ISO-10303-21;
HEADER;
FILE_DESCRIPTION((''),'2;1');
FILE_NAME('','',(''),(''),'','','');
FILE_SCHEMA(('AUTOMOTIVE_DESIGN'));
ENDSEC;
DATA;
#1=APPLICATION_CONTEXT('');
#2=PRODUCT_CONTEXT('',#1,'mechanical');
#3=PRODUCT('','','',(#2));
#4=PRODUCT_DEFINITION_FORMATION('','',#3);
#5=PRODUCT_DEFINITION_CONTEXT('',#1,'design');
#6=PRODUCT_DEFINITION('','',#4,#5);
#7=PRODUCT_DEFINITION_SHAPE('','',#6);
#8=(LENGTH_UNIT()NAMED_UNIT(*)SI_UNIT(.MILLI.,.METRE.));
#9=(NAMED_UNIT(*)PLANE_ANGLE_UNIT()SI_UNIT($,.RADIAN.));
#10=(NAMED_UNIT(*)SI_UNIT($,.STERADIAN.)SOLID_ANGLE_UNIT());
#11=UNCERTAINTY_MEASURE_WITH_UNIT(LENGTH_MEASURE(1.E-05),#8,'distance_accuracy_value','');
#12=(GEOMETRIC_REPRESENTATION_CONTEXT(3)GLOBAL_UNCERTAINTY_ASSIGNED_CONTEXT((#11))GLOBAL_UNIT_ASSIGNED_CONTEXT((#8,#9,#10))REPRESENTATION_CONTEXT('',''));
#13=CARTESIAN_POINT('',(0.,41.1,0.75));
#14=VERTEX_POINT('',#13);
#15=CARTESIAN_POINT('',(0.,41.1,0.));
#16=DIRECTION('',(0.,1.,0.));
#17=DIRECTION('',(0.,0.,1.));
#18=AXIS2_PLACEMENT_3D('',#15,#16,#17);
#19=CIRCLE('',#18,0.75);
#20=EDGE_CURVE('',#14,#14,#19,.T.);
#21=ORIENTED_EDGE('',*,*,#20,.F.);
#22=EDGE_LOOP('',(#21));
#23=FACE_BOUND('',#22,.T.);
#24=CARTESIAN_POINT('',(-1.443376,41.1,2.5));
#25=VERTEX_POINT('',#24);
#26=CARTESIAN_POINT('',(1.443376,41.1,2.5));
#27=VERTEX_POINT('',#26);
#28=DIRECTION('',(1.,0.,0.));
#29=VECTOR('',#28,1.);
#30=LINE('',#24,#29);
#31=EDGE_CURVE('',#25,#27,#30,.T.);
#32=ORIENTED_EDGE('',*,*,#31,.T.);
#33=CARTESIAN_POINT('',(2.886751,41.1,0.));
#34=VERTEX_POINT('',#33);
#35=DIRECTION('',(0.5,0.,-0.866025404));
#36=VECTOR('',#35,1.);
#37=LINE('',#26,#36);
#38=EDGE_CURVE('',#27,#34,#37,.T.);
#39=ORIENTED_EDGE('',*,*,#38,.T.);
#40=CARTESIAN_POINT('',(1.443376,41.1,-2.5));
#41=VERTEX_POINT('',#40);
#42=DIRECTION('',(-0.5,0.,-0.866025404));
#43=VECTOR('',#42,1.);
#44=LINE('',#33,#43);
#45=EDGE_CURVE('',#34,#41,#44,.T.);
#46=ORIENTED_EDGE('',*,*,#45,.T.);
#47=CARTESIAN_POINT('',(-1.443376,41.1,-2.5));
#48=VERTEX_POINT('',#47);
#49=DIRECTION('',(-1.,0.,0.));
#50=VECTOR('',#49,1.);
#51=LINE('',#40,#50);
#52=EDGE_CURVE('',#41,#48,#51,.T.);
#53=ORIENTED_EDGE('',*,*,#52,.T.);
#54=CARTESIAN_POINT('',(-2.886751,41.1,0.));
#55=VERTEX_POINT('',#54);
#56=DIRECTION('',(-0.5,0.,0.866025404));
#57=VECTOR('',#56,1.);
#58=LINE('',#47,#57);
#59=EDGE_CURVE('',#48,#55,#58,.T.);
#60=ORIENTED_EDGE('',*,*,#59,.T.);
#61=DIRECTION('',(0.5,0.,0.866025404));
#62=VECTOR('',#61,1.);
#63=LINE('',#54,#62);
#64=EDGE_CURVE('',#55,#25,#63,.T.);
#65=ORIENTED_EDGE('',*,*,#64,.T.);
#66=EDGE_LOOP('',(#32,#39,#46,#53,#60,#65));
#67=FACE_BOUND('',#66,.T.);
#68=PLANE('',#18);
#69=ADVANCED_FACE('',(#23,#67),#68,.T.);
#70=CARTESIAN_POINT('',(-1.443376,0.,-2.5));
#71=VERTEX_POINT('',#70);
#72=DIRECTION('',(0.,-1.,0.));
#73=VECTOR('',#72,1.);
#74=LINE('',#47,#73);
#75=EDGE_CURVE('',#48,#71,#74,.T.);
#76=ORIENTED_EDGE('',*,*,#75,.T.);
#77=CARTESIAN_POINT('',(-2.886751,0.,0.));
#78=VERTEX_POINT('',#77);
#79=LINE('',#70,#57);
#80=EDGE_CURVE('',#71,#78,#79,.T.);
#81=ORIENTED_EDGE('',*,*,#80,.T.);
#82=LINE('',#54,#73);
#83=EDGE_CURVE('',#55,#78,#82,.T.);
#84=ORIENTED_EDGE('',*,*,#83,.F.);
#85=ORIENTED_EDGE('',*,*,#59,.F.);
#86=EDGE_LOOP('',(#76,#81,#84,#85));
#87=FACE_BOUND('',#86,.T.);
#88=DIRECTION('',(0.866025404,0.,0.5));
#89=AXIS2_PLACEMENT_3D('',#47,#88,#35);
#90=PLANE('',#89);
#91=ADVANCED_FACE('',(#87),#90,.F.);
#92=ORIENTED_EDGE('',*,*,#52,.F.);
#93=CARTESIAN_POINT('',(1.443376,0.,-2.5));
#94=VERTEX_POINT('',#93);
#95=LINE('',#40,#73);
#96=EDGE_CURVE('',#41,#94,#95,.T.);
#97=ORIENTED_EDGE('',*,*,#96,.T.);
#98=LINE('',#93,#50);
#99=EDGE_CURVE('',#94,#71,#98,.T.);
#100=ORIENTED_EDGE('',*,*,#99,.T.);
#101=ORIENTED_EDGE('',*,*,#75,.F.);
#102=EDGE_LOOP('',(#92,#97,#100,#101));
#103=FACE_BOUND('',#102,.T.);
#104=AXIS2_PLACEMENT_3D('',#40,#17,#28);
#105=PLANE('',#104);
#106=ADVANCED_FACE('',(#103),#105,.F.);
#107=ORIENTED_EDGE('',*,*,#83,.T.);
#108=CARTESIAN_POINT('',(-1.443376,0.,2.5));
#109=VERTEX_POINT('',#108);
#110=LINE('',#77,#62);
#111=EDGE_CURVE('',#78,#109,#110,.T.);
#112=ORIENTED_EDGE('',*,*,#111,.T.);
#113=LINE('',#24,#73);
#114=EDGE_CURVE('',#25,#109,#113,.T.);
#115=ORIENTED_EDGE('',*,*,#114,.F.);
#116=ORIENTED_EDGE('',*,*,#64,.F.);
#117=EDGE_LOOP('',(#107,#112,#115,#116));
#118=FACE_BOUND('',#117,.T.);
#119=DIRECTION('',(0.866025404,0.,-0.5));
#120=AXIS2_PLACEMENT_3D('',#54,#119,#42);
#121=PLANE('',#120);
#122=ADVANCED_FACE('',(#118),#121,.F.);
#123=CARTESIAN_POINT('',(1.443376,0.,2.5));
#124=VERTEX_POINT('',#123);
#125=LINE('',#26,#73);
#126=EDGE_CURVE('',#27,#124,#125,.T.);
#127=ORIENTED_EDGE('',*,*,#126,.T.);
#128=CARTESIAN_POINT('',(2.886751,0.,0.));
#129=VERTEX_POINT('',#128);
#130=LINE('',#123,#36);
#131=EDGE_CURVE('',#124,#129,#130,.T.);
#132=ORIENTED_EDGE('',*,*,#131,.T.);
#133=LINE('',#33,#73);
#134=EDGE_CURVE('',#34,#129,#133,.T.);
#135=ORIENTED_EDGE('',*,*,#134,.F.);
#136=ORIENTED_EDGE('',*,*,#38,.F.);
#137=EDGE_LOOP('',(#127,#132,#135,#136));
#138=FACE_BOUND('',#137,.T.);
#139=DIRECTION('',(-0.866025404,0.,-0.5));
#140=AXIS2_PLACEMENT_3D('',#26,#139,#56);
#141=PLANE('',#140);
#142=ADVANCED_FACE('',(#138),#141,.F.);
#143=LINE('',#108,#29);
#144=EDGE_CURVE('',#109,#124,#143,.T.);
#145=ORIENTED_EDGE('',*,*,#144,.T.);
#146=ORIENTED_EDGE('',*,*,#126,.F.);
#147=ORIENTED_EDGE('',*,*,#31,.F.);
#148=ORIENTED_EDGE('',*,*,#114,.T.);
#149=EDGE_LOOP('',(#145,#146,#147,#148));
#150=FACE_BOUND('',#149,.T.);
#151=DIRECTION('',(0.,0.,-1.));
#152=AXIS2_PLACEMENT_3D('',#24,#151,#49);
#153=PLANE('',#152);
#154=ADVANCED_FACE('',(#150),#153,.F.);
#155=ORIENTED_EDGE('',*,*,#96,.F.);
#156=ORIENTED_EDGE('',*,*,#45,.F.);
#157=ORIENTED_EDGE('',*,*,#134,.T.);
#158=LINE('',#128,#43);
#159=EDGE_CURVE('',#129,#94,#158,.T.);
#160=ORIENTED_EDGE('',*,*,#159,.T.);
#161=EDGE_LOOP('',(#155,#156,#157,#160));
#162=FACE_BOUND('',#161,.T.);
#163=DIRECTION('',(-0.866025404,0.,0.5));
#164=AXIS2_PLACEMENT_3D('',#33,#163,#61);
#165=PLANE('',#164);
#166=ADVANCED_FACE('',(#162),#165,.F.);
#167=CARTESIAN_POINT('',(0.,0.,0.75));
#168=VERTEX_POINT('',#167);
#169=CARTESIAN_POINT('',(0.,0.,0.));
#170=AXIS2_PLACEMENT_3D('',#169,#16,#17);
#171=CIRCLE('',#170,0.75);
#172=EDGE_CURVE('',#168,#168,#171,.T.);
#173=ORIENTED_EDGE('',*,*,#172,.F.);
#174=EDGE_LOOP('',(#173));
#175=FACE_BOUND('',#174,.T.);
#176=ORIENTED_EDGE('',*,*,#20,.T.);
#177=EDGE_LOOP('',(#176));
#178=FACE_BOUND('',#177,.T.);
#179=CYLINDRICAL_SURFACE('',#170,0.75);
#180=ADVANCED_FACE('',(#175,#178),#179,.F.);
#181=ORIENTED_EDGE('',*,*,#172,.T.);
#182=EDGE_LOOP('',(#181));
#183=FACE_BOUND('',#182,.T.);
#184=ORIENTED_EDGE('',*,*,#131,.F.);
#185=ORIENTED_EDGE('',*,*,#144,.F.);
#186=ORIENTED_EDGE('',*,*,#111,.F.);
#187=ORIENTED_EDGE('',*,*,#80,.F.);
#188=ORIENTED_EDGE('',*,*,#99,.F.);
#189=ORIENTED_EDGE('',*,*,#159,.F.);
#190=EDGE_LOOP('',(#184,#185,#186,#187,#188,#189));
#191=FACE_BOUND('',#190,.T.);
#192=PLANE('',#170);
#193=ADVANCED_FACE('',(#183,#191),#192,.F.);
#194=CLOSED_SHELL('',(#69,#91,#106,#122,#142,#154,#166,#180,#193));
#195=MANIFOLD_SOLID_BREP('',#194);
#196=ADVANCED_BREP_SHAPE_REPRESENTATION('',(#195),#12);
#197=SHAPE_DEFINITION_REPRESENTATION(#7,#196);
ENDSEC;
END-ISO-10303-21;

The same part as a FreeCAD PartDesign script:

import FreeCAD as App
import Part
import Sketcher
from FreeCAD import Vector
Q = App.Units.Quantity

doc = App.newDocument("Part")
params = doc.addObject("Spreadsheet::Sheet", "Params")
for row, (alias, value) in enumerate([
    ("pad1_length", "41.1 mm"),
    ("sketch2_diameter", "1.5 mm"),
], start=1):
    params.set(f"A{row}", alias)
    params.set(f"B{row}", "=" + value)
    params.setAlias(f"B{row}", alias)

body = doc.addObject("PartDesign::Body", "Body")

# Sketch on XZ plane
sketch1 = doc.addObject("Sketcher::SketchObject", "Sketch")
body.addObject(sketch1)
sketch1.AttachmentSupport = (doc.XZ_Plane, [""])
sketch1.MapMode = "FlatFace"
sketch1.addGeometry([
    Part.LineSegment(Vector(2.886751, 0, 0), Vector(1.443376, -2.5, 0)),  # 0
    Part.LineSegment(Vector(1.443376, -2.5, 0), Vector(-1.443376, -2.5, 0)),  # 1
    Part.LineSegment(Vector(-1.443376, -2.5, 0), Vector(-2.886751, 0, 0)),  # 2
    Part.LineSegment(Vector(-2.886751, 0, 0), Vector(-1.443376, 2.5, 0)),  # 3
    Part.LineSegment(Vector(-1.443376, 2.5, 0), Vector(1.443376, 2.5, 0)),  # 4
    Part.LineSegment(Vector(1.443376, 2.5, 0), Vector(2.886751, 0, 0)),  # 5
], False)
sketch1.addConstraint([
    Sketcher.Constraint("Coincident", 0, 2, 1, 1),
    Sketcher.Constraint("Coincident", 1, 2, 2, 1),
    Sketcher.Constraint("Coincident", 2, 2, 3, 1),
    Sketcher.Constraint("Coincident", 3, 2, 4, 1),
    Sketcher.Constraint("Coincident", 4, 2, 5, 1),
    Sketcher.Constraint("Coincident", 5, 2, 0, 1),
    Sketcher.Constraint("Horizontal", 1),
    Sketcher.Constraint("Horizontal", 4),
    Sketcher.Constraint("Symmetric", 0, 2, 3, 2, -1, 1),
    Sketcher.Constraint("Symmetric", 2, 2, 5, 2, -1, 1),
    Sketcher.Constraint("PointOnObject", 2, 2, -1),
    Sketcher.Constraint("Parallel", 2, 5),
    Sketcher.Constraint("Vertical", 1, 2, 3, 2),
    Sketcher.Constraint("Angle", 0, Q("-120 deg")),
    Sketcher.Constraint("DistanceY", 1, 2, 3, 2, Q("5 mm")),
    Sketcher.Constraint("DistanceX", 1, 2, 1, 1, Q("2.886751 mm")),
])
pad1 = doc.addObject("PartDesign::Pad", "Pad")
body.addObject(pad1)
pad1.Profile = sketch1
pad1.setExpression("Length", "Params.pad1_length")
pad1.Reversed = True

# Sketch on XZ plane
sketch2 = doc.addObject("Sketcher::SketchObject", "Sketch001")
body.addObject(sketch2)
sketch2.AttachmentSupport = (doc.XZ_Plane, [""])
sketch2.MapMode = "FlatFace"
sketch2.AttachmentOffset = App.Placement(Vector(0, 0, -41.1), App.Rotation())
sketch2.addGeometry(Part.Circle(Vector(0, 0, 0), Vector(0, 0, 1), 0.75), False)
sketch2.addConstraint([
    Sketcher.Constraint("Coincident", 0, 3, -1, 1),
    Sketcher.Constraint("Diameter", 0, Q("1.5 mm")),
])
sketch2.setExpression("Constraints[1]", "Params.sketch2_diameter")
pocket1 = doc.addObject("PartDesign::Pocket", "Pocket")
body.addObject(pocket1)
pocket1.Profile = sketch2
pocket1.Type = "ThroughAll"
pocket1.Reversed = True

doc.recompute()
